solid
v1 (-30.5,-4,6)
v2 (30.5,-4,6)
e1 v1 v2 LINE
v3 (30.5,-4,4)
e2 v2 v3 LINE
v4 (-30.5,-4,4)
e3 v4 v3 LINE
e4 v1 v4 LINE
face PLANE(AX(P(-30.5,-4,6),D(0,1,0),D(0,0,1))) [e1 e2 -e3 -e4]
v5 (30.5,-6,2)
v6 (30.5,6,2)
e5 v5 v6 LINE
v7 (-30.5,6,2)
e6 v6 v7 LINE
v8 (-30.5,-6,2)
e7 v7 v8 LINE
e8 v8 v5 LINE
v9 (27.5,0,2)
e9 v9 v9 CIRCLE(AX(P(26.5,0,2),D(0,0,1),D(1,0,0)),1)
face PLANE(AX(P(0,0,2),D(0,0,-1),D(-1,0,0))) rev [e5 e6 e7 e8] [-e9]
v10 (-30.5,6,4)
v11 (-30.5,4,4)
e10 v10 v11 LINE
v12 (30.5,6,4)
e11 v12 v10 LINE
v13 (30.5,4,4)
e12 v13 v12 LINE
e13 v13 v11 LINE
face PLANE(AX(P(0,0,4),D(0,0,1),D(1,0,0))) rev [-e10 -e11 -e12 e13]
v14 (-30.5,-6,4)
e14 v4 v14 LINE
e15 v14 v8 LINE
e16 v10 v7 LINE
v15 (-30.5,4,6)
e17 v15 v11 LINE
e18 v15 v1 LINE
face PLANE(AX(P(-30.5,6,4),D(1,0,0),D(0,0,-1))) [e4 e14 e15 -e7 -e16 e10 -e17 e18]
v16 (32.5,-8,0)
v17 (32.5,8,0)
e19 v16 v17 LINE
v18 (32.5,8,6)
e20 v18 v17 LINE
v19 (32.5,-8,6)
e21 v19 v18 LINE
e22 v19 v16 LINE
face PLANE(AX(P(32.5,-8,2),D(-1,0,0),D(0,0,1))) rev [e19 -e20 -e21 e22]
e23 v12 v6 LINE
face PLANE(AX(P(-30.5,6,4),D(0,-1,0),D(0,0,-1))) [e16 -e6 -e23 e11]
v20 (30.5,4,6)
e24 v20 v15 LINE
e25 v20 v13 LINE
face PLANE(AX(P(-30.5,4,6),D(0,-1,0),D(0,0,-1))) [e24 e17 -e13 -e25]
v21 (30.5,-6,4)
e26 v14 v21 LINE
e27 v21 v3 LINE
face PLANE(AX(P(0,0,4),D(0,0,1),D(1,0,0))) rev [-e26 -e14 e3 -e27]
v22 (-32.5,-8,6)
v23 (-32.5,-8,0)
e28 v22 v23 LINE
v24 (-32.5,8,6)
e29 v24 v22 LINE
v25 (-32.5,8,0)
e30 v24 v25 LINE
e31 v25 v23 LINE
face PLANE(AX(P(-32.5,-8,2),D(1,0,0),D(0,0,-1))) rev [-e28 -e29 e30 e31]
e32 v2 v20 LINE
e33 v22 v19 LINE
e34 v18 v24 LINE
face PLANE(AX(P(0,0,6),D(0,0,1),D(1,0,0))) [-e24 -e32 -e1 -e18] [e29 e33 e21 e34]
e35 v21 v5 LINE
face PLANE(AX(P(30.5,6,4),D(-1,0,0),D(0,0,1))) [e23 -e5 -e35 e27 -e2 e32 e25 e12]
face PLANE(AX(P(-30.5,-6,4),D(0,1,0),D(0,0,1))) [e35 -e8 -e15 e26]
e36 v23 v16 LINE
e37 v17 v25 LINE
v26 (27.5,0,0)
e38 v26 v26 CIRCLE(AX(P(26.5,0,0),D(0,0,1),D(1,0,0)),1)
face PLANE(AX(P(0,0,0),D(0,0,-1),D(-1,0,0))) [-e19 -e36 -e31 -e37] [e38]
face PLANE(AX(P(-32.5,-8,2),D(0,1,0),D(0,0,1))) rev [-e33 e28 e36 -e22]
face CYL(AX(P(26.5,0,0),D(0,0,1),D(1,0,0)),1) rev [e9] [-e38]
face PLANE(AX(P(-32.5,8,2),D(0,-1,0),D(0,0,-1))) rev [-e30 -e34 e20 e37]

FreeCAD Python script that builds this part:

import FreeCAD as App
import Part
import Sketcher
from FreeCAD import Vector
Q = App.Units.Quantity

doc = App.newDocument("Part")
params = doc.addObject("Spreadsheet::Sheet", "Params")
for row, (alias, value) in enumerate([
    ("sketch1_width", "65 mm"),
    ("sketch1_height", "16 mm"),
    ("pad1_length", "2 mm"),
    ("sketch2_width", "65 mm"),
    ("sketch2_width2", "61 mm"),
    ("sketch2_height", "16 mm"),
    ("sketch2_height2", "12 mm"),
    ("pad2_length", "2 mm"),
    ("sketch3_width", "65 mm"),
    ("sketch3_width2", "61 mm"),
    ("sketch3_height", "16 mm"),
    ("sketch3_height2", "8 mm"),
    ("pad3_length", "2 mm"),
    ("sketch4_diameter", "2 mm"),
], start=1):
    params.set(f"A{row}", alias)
    params.set(f"B{row}", "=" + value)
    params.setAlias(f"B{row}", alias)

body = doc.addObject("PartDesign::Body", "Body")

sketch1 = doc.addObject("Sketcher::SketchObject", "Sketch")
body.addObject(sketch1)
sketch1.AttachmentSupport = (doc.XY_Plane, [""])
sketch1.MapMode = "FlatFace"
sketch1.addGeometry([
    Part.LineSegment(Vector(-32, 8, 0), Vector(-32, -8, 0)),
    Part.LineSegment(Vector(-32, -8, 0), Vector(32, -8, 0)),
    Part.LineSegment(Vector(32, -8, 0), Vector(32, 8, 0)),
    Part.LineSegment(Vector(32, 8, 0), Vector(-32, 8, 0)),
], False)
sketch1.addConstraint([
    Sketcher.Constraint("Coincident", 0, 2, 1, 1),
    Sketcher.Constraint("Coincident", 1, 2, 2, 1),
    Sketcher.Constraint("Coincident", 2, 2, 3, 1),
    Sketcher.Constraint("Coincident", 3, 2, 0, 1),
    Sketcher.Constraint("Vertical", 0),
    Sketcher.Constraint("Horizontal", 1),
    Sketcher.Constraint("Vertical", 2),
    Sketcher.Constraint("Horizontal", 3),
    Sketcher.Constraint("Symmetric", 0, 2, 2, 2, -1, 1),
    Sketcher.Constraint("DistanceX", 1, 1, 1, 2, Q("65 mm")),
    Sketcher.Constraint("DistanceY", 0, 2, 0, 1, Q("16 mm")),
])
sketch1.setExpression("Constraints[9]", "Params.sketch1_width")
sketch1.setExpression("Constraints[10]", "Params.sketch1_height")
pad1 = doc.addObject("PartDesign::Pad", "Pad")
body.addObject(pad1)
pad1.Profile = sketch1
pad1.setExpression("Length", "Params.pad1_length")

sketch2 = doc.addObject("Sketcher::SketchObject", "Sketch001")
body.addObject(sketch2)
sketch2.AttachmentSupport = (doc.XY_Plane, [""])
sketch2.MapMode = "FlatFace"
sketch2.AttachmentOffset = App.Placement(Vector(0, 0, 2), App.Rotation())
sketch2.addGeometry([
    Part.LineSegment(Vector(-32, 8, 0), Vector(-32, -8, 0)),
    Part.LineSegment(Vector(-32, -8, 0), Vector(32, -8, 0)),
    Part.LineSegment(Vector(32, -8, 0), Vector(32, 8, 0)),
    Part.LineSegment(Vector(32, 8, 0), Vector(-32, 8, 0)),
    Part.LineSegment(Vector(30, -6, 0), Vector(-30, -6, 0)),
    Part.LineSegment(Vector(-30, -6, 0), Vector(-30, 6, 0)),
    Part.LineSegment(Vector(-30, 6, 0), Vector(30, 6, 0)),
    Part.LineSegment(Vector(30, 6, 0), Vector(30, -6, 0)),
], False)
sketch2.addConstraint([
    Sketcher.Constraint("Coincident", 0, 2, 1, 1),
    Sketcher.Constraint("Coincident", 1, 2, 2, 1),
    Sketcher.Constraint("Coincident", 2, 2, 3, 1),
    Sketcher.Constraint("Coincident", 3, 2, 0, 1),
    Sketcher.Constraint("Coincident", 4, 2, 5, 1),
    Sketcher.Constraint("Coincident", 5, 2, 6, 1),
    Sketcher.Constraint("Coincident", 6, 2, 7, 1),
    Sketcher.Constraint("Coincident", 7, 2, 4, 1),
    Sketcher.Constraint("Vertical", 0),
    Sketcher.Constraint("Horizontal", 1),
    Sketcher.Constraint("Vertical", 2),
    Sketcher.Constraint("Horizontal", 3),
    Sketcher.Constraint("Horizontal", 4),
    Sketcher.Constraint("Vertical", 5),
    Sketcher.Constraint("Horizontal", 6),
    Sketcher.Constraint("Vertical", 7),
    Sketcher.Constraint("Symmetric", 0, 2, 2, 2, -1, 1),
    Sketcher.Constraint("Symmetric", 4, 2, 6, 2, -1, 1),
    Sketcher.Constraint("DistanceX", 1, 1, 1, 2, Q("65 mm")),
    Sketcher.Constraint("DistanceX", 4, 2, 4, 1, Q("61 mm")),
    Sketcher.Constraint("DistanceY", 0, 2, 0, 1, Q("16 mm")),
    Sketcher.Constraint("DistanceY", 5, 1, 5, 2, Q("12 mm")),
])
sketch2.setExpression("Constraints[18]", "Params.sketch2_width")
sketch2.setExpression("Constraints[19]", "Params.sketch2_width2")
sketch2.setExpression("Constraints[20]", "Params.sketch2_height")
sketch2.setExpression("Constraints[21]", "Params.sketch2_height2")
pad2 = doc.addObject("PartDesign::Pad", "Pad001")
body.addObject(pad2)
pad2.Profile = sketch2
pad2.setExpression("Length", "Params.pad2_length")

sketch3 = doc.addObject("Sketcher::SketchObject", "Sketch002")
body.addObject(sketch3)
sketch3.AttachmentSupport = (doc.XY_Plane, [""])
sketch3.MapMode = "FlatFace"
sketch3.AttachmentOffset = App.Placement(Vector(0, 0, 4), App.Rotation())
sketch3.addGeometry([
    Part.LineSegment(Vector(-32, 8, 0), Vector(-32, -8, 0)),
    Part.LineSegment(Vector(-32, -8, 0), Vector(32, -8, 0)),
    Part.LineSegment(Vector(32, -8, 0), Vector(32, 8, 0)),
    Part.LineSegment(Vector(32, 8, 0), Vector(-32, 8, 0)),
    Part.LineSegment(Vector(30, -4, 0), Vector(-30, -4, 0)),
    Part.LineSegment(Vector(-30, -4, 0), Vector(-30, 4, 0)),
    Part.LineSegment(Vector(-30, 4, 0), Vector(30, 4, 0)),
    Part.LineSegment(Vector(30, 4, 0), Vector(30, -4, 0)),
], False)
sketch3.addConstraint([
    Sketcher.Constraint("Coincident", 0, 2, 1, 1),
    Sketcher.Constraint("Coincident", 1, 2, 2, 1),
    Sketcher.Constraint("Coincident", 2, 2, 3, 1),
    Sketcher.Constraint("Coincident", 3, 2, 0, 1),
    Sketcher.Constraint("Coincident", 4, 2, 5, 1),
    Sketcher.Constraint("Coincident", 5, 2, 6, 1),
    Sketcher.Constraint("Coincident", 6, 2, 7, 1),
    Sketcher.Constraint("Coincident", 7, 2, 4, 1),
    Sketcher.Constraint("Vertical", 0),
    Sketcher.Constraint("Horizontal", 1),
    Sketcher.Constraint("Vertical", 2),
    Sketcher.Constraint("Horizontal", 3),
    Sketcher.Constraint("Horizontal", 4),
    Sketcher.Constraint("Vertical", 5),
    Sketcher.Constraint("Horizontal", 6),
    Sketcher.Constraint("Vertical", 7),
    Sketcher.Constraint("Symmetric", 0, 2, 2, 2, -1, 1),
    Sketcher.Constraint("Symmetric", 4, 2, 6, 2, -1, 1),
    Sketcher.Constraint("DistanceX", 1, 1, 1, 2, Q("65 mm")),
    Sketcher.Constraint("DistanceX", 4, 2, 4, 1, Q("61 mm")),
    Sketcher.Constraint("DistanceY", 0, 2, 0, 1, Q("16 mm")),
    Sketcher.Constraint("DistanceY", 5, 1, 5, 2, Q("8 mm")),
])
sketch3.setExpression("Constraints[18]", "Params.sketch3_width")
sketch3.setExpression("Constraints[19]", "Params.sketch3_width2")
sketch3.setExpression("Constraints[20]", "Params.sketch3_height")
sketch3.setExpression("Constraints[21]", "Params.sketch3_height2")
pad3 = doc.addObject("PartDesign::Pad", "Pad002")
body.addObject(pad3)
pad3.Profile = sketch3
pad3.setExpression("Length", "Params.pad3_length")

sketch4 = doc.addObject("Sketcher::SketchObject", "Sketch003")
body.addObject(sketch4)
sketch4.AttachmentSupport = (doc.XY_Plane, [""])
sketch4.MapMode = "FlatFace"
sketch4.AttachmentOffset = App.Placement(Vector(0, 0, 2), App.Rotation())
sketch4.addGeometry(Part.Circle(Vector(26.5, 0, 0), Vector(0, 0, 1), 1), False)
sketch4.addConstraint([
    Sketcher.Constraint("PointOnObject", 0, 3, -1),
    Sketcher.Constraint("Diameter", 0, Q("2 mm")),
    Sketcher.Constraint("DistanceX", -1, 1, 0, 3, Q("26.5 mm")),
])
sketch4.setExpression("Constraints[1]", "Params.sketch4_diameter")
pocket1 = doc.addObject("PartDesign::Pocket", "Pocket")
body.addObject(pocket1)
pocket1.Profile = sketch4
pocket1.Type = "ThroughAll"

doc.recompute()
